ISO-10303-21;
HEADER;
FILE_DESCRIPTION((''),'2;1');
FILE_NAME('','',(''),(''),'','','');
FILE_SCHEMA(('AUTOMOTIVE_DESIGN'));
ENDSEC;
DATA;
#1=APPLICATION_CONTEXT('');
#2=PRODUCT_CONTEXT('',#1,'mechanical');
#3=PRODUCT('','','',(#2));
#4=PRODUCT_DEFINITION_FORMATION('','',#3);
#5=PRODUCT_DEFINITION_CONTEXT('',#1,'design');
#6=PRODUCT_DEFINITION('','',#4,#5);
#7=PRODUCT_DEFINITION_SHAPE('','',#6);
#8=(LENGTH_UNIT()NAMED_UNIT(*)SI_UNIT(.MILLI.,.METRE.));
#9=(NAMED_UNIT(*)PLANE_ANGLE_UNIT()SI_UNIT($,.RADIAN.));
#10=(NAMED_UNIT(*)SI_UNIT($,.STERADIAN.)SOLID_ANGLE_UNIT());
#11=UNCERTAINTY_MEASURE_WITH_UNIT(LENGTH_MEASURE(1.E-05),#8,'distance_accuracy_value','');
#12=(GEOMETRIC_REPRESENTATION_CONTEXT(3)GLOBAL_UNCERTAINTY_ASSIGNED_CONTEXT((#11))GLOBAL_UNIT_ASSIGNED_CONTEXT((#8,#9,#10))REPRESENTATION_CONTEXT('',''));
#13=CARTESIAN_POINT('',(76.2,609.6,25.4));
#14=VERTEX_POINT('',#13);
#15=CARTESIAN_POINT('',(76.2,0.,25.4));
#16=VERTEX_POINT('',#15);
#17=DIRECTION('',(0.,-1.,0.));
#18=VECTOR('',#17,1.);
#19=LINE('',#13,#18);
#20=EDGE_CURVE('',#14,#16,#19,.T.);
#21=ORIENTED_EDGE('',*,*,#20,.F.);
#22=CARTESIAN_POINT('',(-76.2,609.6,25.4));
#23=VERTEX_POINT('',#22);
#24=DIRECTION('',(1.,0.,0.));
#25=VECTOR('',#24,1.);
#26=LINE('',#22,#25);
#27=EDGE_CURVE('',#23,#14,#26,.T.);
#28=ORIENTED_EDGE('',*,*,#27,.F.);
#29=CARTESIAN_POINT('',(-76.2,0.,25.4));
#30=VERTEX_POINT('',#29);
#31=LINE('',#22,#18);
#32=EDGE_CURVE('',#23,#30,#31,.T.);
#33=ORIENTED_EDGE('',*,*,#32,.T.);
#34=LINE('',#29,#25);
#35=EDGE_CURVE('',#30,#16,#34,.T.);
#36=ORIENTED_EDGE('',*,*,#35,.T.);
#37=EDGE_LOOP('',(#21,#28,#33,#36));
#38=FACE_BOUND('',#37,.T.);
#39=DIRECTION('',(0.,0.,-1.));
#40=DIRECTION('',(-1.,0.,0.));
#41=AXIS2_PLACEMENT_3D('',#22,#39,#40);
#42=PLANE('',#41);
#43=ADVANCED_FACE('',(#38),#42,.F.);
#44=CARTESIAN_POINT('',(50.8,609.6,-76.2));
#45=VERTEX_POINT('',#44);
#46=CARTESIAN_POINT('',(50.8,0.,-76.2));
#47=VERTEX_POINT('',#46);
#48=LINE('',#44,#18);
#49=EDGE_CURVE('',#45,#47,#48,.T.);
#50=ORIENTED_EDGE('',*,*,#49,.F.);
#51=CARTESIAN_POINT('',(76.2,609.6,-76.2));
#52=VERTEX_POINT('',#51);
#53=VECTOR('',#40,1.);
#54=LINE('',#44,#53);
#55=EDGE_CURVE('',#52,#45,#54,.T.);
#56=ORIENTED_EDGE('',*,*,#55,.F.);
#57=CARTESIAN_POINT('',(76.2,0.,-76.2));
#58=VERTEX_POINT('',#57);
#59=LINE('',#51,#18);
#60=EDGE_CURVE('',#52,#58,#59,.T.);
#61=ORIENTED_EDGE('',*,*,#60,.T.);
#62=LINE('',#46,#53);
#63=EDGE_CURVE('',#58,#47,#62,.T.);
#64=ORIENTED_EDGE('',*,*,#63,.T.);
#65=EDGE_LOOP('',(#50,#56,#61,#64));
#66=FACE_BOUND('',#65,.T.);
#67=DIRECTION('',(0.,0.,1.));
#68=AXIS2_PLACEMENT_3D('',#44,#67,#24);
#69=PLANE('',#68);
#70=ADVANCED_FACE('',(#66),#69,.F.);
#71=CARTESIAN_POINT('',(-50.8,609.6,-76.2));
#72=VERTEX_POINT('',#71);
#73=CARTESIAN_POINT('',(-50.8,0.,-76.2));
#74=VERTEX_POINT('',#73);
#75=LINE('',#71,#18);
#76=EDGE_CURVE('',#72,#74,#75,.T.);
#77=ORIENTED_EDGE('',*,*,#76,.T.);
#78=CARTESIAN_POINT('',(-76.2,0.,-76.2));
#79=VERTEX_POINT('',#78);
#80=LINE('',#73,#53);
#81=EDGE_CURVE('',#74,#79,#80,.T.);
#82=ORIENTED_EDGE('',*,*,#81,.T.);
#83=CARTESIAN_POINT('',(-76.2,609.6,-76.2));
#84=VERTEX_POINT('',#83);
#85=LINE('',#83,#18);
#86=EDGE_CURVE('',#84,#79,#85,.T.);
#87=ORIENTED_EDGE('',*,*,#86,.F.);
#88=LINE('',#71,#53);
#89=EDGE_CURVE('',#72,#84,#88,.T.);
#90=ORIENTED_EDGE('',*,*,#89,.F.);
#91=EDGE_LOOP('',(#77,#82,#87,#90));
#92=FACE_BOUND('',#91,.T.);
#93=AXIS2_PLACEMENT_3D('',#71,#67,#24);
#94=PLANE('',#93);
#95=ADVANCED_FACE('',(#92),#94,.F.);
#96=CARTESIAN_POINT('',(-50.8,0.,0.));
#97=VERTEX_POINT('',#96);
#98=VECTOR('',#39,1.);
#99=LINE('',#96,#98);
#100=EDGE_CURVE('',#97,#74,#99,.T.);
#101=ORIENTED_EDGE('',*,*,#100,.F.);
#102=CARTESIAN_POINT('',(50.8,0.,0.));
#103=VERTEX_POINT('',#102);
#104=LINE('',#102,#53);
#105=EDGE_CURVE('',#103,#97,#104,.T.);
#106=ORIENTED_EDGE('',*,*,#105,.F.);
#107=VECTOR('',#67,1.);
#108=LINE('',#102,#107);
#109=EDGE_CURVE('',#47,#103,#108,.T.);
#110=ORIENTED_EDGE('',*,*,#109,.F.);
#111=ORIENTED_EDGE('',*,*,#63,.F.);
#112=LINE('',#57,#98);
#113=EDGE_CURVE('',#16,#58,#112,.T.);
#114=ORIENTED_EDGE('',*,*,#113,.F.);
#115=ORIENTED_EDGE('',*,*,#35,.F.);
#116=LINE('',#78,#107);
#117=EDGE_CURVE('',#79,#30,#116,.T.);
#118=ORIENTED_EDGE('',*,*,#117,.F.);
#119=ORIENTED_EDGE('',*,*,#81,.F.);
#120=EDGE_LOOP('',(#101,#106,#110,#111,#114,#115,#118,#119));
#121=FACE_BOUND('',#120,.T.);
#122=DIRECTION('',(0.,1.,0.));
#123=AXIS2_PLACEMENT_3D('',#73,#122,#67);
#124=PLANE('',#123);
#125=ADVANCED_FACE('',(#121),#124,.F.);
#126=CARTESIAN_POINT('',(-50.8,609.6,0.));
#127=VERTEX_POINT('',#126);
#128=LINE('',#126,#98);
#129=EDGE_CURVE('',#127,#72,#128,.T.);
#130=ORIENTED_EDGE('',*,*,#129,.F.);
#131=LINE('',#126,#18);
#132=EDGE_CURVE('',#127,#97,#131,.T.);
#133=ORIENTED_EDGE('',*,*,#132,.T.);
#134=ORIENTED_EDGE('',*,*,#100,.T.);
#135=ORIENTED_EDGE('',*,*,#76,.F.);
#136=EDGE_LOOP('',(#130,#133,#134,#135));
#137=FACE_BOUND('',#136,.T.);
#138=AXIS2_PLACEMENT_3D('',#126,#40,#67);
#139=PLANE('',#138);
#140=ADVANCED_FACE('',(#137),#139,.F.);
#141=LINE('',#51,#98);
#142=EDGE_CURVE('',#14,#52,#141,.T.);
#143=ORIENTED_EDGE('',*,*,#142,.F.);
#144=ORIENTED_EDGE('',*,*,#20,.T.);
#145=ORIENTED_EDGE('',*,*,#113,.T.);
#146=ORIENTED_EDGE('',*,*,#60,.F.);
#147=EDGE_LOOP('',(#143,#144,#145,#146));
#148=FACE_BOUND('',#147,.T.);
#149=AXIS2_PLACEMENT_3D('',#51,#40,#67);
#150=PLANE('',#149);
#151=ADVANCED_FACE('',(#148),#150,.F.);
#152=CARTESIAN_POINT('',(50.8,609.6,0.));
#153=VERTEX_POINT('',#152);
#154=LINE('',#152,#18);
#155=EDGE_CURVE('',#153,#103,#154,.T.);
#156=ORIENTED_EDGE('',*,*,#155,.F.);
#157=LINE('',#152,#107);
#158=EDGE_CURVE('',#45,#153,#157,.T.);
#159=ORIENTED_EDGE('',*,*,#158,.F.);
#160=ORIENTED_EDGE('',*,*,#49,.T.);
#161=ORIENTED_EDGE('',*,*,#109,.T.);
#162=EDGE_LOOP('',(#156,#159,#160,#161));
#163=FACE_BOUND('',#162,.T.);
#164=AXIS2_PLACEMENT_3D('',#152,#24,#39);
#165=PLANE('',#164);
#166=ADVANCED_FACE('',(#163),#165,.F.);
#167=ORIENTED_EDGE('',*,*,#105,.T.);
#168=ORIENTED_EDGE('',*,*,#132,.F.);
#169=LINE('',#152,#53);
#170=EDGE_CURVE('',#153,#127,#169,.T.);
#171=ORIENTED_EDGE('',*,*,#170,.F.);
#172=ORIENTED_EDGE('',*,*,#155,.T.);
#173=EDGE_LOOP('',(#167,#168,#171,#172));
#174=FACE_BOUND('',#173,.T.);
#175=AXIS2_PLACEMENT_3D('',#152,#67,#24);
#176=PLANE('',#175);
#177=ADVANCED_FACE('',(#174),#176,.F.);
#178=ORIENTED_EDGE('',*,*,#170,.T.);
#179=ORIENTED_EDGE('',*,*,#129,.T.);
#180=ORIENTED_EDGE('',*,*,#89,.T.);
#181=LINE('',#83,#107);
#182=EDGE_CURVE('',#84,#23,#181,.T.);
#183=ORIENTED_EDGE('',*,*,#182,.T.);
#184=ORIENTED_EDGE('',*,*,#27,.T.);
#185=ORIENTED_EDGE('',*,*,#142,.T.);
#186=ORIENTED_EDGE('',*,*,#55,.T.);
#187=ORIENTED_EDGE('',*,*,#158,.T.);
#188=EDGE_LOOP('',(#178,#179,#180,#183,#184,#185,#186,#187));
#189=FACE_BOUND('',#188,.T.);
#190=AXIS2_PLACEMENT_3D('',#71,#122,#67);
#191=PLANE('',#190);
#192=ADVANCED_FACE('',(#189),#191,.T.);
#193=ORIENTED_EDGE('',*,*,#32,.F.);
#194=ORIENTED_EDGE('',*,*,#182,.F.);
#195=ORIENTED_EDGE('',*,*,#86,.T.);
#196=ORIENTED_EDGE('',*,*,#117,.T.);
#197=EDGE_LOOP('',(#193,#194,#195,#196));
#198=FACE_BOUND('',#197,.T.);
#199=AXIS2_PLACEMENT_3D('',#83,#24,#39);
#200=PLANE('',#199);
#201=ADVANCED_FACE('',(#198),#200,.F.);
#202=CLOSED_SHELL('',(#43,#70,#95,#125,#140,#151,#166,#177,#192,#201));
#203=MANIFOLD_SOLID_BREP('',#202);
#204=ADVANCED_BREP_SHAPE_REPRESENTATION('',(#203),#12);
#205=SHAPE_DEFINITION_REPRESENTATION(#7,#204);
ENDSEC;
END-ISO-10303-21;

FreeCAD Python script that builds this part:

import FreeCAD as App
import Part
import Sketcher
from FreeCAD import Vector
Q = App.Units.Quantity

doc = App.newDocument("Part")
body = doc.addObject("PartDesign::Body", "Body")

# Sketch on XZ plane
sketch1 = body.newObject("Sketcher::SketchObject", "Sketch")
sketch1.AttachmentSupport = (doc.getObject("XZ_Plane"), [""])
sketch1.MapMode = "FlatFace"
sketch1.addGeometry([
    Part.LineSegment(Vector(51, 0, 0), Vector(-51, 0, 0)),  # 0
    Part.LineSegment(Vector(-51, 0, 0), Vector(-51, -76, 0)),  # 1
    Part.LineSegment(Vector(-51, -76, 0), Vector(-76, -76, 0)),  # 2
    Part.LineSegment(Vector(-76, -76, 0), Vector(-76, 25, 0)),  # 3
    Part.LineSegment(Vector(-76, 25, 0), Vector(76, 25, 0)),  # 4
    Part.LineSegment(Vector(76, 25, 0), Vector(76, -76, 0)),  # 5
    Part.LineSegment(Vector(76, -76, 0), Vector(51, -76, 0)),  # 6
    Part.LineSegment(Vector(51, -76, 0), Vector(51, 0, 0)),  # 7
], False)
sketch1.addConstraint([
    Sketcher.Constraint("Coincident", 0, 2, 1, 1),
    Sketcher.Constraint("Coincident", 1, 2, 2, 1),
    Sketcher.Constraint("Coincident", 2, 2, 3, 1),
    Sketcher.Constraint("Coincident", 3, 2, 4, 1),
    Sketcher.Constraint("Coincident", 4, 2, 5, 1),
    Sketcher.Constraint("Coincident", 5, 2, 6, 1),
    Sketcher.Constraint("Coincident", 6, 2, 7, 1),
    Sketcher.Constraint("Coincident", 7, 2, 0, 1),
    Sketcher.Constraint("Horizontal", 0),
    Sketcher.Constraint("Vertical", 1),
    Sketcher.Constraint("Horizontal", 2),
    Sketcher.Constraint("Vertical", 3),
    Sketcher.Constraint("Horizontal", 4),
    Sketcher.Constraint("Vertical", 5),
    Sketcher.Constraint("Horizontal", 6),
    Sketcher.Constraint("Vertical", 7),
    Sketcher.Constraint("Symmetric", 0, 2, 7, 2, -1, 1),
    Sketcher.Constraint("Symmetric", 2, 2, 5, 2, -2),
    Sketcher.Constraint("Equal", 0, 3),
    Sketcher.Constraint("DistanceX", 0, 2, 0, 1, Q("4 in")),
    Sketcher.Constraint("DistanceX", 2, 2, 2, 1, Q("1 in")),
    Sketcher.Constraint("DistanceY", 1, 2, 1, 1, Q("3 in")),
])
pad1 = body.newObject("PartDesign::Pad", "Pad")
pad1.Profile = sketch1
pad1.Length = Q("24 in")
pad1.Reversed = True

doc.recompute()
